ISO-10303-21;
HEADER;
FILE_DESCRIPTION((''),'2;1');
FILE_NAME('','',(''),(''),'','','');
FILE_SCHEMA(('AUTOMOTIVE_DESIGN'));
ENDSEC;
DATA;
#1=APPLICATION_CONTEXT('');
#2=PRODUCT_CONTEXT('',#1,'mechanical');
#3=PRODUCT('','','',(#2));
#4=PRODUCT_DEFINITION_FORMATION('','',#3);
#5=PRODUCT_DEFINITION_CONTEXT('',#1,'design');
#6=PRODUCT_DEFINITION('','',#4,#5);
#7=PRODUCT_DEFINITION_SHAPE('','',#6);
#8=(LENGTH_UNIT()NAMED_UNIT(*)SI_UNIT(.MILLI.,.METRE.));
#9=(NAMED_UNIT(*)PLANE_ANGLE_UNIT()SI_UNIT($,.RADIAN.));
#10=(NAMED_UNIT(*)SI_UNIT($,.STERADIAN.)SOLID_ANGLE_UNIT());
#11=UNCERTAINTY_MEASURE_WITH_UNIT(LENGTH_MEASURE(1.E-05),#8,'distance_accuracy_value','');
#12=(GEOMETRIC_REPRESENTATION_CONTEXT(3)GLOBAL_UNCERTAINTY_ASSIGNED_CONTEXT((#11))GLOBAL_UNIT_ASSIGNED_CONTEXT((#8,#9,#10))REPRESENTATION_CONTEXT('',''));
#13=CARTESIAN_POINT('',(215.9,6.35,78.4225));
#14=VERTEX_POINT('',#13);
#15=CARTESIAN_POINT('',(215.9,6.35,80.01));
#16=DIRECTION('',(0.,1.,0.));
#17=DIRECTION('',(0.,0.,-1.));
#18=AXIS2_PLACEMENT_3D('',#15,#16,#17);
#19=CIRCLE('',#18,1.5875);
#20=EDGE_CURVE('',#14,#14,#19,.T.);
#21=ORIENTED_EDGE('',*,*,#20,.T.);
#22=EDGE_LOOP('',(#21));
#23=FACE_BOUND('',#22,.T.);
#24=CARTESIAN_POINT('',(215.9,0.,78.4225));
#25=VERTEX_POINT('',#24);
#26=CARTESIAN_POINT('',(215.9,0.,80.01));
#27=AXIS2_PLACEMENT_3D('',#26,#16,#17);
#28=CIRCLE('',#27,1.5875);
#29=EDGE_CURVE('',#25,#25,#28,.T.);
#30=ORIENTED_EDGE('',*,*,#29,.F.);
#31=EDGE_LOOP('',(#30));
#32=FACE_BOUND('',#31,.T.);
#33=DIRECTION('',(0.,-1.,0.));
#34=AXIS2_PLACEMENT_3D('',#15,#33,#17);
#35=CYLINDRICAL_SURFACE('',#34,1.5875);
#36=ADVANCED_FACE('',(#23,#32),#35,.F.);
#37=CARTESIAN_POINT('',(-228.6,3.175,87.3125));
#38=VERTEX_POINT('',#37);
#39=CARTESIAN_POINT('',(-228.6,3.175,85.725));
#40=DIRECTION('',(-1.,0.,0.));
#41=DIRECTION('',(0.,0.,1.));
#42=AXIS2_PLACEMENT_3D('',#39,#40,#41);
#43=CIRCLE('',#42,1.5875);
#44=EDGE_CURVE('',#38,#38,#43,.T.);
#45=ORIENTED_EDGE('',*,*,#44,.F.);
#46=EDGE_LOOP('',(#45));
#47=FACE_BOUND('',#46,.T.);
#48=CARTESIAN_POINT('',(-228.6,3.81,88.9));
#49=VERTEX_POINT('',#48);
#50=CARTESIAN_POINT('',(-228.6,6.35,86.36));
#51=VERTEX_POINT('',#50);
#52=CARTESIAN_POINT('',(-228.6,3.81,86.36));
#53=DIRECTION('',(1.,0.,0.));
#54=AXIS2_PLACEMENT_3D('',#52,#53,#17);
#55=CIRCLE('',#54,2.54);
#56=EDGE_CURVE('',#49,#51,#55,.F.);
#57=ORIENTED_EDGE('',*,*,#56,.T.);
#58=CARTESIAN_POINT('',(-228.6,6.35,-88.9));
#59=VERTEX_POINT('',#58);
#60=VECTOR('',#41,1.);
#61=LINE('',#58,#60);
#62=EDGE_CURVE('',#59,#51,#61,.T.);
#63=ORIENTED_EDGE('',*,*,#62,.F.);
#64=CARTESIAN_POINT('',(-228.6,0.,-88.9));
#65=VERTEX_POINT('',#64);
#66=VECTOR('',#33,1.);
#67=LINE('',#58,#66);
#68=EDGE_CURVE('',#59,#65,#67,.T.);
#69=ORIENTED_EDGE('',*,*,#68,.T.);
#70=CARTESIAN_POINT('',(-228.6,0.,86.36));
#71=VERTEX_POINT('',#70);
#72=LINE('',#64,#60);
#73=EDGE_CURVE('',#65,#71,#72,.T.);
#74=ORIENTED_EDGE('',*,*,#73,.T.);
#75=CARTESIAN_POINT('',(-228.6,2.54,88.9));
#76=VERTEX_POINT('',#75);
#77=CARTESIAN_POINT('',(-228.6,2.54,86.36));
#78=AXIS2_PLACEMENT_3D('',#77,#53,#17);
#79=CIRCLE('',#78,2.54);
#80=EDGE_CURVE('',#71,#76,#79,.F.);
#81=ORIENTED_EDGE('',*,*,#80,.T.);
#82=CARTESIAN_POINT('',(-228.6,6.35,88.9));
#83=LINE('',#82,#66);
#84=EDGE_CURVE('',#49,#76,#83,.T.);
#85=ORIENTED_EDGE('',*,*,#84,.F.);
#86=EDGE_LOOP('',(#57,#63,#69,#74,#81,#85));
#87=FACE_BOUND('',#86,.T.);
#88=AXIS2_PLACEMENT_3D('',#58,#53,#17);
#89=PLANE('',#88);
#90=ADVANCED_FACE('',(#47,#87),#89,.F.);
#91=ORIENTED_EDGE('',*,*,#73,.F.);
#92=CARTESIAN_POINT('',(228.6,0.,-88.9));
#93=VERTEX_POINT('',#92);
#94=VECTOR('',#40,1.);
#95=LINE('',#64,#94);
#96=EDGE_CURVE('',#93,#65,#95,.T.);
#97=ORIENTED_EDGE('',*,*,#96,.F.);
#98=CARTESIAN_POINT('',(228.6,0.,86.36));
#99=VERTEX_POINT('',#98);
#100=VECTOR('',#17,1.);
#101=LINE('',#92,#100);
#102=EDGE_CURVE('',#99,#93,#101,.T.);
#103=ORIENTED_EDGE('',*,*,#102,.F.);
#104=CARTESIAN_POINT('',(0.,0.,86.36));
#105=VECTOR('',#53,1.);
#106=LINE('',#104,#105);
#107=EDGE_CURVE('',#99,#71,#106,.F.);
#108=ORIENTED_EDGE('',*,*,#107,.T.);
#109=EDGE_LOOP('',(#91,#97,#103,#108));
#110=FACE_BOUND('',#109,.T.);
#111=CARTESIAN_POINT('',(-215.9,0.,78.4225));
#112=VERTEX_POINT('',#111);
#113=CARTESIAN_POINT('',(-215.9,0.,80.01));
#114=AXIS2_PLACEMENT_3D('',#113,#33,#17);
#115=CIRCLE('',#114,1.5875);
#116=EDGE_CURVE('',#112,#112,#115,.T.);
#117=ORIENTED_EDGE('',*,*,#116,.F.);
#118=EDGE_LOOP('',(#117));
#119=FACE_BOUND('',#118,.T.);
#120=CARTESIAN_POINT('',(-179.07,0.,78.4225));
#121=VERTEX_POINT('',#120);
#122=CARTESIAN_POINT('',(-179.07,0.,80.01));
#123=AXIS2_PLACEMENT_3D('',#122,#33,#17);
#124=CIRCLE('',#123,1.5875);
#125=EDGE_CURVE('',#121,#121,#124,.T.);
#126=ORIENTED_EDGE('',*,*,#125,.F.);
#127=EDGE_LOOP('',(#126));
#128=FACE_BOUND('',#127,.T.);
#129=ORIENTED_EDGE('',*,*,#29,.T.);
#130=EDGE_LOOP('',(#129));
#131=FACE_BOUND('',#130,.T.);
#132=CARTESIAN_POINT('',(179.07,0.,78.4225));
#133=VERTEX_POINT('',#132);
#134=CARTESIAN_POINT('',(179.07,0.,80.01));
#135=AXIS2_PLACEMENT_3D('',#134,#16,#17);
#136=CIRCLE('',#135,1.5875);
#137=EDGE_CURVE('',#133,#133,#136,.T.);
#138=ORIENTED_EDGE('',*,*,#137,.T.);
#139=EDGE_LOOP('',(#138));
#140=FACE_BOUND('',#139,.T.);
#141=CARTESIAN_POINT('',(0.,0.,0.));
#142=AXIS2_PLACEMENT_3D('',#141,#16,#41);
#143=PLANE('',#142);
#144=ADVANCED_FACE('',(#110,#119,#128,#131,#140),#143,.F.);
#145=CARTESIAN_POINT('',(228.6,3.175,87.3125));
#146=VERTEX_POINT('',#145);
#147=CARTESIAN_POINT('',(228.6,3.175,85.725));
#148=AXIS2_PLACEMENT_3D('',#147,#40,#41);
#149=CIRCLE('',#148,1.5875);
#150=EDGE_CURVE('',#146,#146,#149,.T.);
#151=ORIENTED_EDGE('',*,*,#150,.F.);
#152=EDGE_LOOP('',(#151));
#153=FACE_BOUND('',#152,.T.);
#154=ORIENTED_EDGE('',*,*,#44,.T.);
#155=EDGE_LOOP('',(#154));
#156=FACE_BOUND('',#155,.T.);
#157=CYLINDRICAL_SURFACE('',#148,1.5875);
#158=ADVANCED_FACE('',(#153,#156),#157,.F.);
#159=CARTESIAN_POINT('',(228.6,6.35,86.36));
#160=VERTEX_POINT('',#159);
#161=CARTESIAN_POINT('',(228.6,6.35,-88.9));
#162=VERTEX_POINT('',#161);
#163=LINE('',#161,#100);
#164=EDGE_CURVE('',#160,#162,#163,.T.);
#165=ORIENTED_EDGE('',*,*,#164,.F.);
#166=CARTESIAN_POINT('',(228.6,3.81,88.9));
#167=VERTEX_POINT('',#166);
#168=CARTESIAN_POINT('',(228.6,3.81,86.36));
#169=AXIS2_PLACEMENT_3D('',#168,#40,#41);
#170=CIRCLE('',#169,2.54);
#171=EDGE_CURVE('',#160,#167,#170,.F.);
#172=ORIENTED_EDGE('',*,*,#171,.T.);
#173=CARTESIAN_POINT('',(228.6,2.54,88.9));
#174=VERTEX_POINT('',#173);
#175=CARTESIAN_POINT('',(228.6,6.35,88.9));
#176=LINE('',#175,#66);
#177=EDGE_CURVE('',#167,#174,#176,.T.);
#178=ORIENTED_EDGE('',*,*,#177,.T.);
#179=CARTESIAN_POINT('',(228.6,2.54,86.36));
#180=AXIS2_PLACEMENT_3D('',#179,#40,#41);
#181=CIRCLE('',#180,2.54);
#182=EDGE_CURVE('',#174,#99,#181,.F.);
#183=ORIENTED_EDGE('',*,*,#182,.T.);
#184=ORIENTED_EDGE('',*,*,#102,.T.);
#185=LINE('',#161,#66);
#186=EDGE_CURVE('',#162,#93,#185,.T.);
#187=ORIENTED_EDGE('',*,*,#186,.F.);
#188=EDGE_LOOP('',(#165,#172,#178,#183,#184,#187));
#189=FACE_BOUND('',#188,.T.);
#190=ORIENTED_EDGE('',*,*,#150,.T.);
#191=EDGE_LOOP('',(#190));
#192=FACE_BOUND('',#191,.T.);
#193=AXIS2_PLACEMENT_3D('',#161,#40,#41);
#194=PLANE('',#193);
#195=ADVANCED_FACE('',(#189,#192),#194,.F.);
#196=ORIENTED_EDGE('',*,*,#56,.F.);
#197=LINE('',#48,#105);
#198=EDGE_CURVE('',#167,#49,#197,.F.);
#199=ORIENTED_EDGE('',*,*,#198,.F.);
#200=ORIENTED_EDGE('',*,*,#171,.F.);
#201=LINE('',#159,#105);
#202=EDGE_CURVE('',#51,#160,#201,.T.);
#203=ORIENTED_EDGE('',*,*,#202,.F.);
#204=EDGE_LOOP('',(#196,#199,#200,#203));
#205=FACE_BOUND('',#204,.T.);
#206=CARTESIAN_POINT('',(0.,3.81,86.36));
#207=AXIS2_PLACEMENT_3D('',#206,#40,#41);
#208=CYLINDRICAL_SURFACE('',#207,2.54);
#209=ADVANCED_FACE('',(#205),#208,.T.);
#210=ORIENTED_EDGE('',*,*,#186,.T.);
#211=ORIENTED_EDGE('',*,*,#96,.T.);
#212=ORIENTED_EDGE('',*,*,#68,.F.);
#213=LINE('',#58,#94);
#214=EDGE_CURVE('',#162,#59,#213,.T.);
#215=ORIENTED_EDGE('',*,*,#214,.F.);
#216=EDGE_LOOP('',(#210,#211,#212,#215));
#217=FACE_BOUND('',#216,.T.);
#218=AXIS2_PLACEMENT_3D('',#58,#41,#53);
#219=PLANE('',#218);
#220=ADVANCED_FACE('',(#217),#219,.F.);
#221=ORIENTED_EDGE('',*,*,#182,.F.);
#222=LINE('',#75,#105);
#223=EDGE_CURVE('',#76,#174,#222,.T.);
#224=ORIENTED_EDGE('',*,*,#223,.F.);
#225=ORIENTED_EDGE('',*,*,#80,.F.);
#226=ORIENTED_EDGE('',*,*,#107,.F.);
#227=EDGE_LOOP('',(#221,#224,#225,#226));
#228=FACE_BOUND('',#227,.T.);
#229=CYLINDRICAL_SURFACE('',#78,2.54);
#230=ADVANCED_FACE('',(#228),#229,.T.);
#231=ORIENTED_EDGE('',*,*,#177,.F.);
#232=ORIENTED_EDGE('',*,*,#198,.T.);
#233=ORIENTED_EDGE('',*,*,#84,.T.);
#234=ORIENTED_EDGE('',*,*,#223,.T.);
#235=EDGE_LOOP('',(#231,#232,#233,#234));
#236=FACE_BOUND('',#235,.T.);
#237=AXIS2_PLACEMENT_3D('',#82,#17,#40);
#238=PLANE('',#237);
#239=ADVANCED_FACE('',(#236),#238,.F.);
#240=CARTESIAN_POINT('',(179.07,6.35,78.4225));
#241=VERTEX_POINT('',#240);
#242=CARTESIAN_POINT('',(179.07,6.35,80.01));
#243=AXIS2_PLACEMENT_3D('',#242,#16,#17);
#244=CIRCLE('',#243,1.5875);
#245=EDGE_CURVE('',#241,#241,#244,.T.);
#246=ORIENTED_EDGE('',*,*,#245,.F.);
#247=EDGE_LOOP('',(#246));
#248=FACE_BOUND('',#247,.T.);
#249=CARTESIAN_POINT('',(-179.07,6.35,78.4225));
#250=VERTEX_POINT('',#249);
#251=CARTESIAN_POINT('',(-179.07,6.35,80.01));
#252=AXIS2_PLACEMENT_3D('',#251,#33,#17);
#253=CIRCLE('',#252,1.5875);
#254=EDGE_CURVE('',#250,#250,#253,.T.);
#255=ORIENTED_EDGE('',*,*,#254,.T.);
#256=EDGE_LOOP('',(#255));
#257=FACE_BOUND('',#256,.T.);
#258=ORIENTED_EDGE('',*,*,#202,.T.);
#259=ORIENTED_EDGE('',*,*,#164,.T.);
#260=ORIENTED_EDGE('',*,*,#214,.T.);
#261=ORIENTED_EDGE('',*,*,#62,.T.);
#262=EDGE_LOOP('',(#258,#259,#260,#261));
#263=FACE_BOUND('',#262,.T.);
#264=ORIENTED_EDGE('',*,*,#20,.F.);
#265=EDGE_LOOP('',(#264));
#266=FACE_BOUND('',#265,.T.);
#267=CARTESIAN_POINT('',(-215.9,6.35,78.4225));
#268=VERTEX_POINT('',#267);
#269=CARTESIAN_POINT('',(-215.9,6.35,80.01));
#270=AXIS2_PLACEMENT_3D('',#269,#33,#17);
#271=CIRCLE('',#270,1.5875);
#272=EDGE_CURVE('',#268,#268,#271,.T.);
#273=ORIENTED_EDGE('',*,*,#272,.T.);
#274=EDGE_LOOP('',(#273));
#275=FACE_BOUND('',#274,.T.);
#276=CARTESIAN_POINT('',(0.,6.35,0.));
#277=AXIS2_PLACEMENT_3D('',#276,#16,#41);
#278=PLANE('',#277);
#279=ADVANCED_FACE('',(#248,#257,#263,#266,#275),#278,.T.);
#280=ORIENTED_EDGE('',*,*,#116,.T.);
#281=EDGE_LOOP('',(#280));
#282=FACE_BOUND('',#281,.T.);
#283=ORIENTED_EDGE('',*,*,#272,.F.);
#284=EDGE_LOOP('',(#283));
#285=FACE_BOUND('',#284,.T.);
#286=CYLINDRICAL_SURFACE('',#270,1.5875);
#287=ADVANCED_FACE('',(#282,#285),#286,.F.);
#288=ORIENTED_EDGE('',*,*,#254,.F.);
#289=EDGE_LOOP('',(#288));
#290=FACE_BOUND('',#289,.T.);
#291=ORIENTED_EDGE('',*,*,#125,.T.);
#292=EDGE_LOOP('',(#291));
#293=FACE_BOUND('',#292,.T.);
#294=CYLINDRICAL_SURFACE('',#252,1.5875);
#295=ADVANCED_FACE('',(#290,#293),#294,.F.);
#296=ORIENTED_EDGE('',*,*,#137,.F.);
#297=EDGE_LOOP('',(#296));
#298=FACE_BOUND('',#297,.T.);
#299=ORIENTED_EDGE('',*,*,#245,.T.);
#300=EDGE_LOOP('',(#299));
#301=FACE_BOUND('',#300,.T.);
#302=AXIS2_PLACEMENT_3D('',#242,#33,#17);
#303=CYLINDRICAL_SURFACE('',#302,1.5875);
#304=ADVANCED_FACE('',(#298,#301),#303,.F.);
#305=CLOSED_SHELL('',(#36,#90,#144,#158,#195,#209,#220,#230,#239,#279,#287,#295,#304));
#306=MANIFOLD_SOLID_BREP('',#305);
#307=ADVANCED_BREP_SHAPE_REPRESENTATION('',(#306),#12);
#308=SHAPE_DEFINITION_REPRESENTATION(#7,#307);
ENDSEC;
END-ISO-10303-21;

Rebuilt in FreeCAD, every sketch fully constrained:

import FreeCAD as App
import Part
import Sketcher
Q = App.Units.Quantity


def edges_at(feature, points):
    """Names of the edges that pass closest to the given points."""
    edges = feature.Shape.Edges
    near = lambda p: min(range(len(edges)), key=lambda i: edges[i].distToShape(Part.Vertex(*p))[0])
    return sorted({f"Edge{near(p) + 1}" for p in points})


def add_polygon(sketch, points):
    """Adds a closed chain of lines whose ends are joined by coincident constraints."""
    first, n = sketch.GeometryCount, len(points)
    for a, b in zip(points, points[1:] + points[:1]):
        sketch.addGeometry(Part.LineSegment(App.Vector(*a, 0), App.Vector(*b, 0)), False)
    for i in range(n):
        sketch.addConstraint(Sketcher.Constraint("Coincident", first + i, 2, first + (i + 1) % n, 1))

doc = App.newDocument("Part")
body = doc.addObject("PartDesign::Body", "Body")

# Sketch on XZ plane
sketch1 = body.newObject("Sketcher::SketchObject", "Sketch")
sketch1.AttachmentSupport = (doc.getObject("XZ_Plane"), [""])
sketch1.MapMode = "FlatFace"
add_polygon(sketch1, [(-229, -89), (-229, 89), (229, 89), (229, -89)])  # lines 0-3
sketch1.addConstraint([
    Sketcher.Constraint("Vertical", 0),
    Sketcher.Constraint("Horizontal", 1),
    Sketcher.Constraint("Vertical", 2),
    Sketcher.Constraint("Horizontal", 3),
    Sketcher.Constraint("Symmetric", 0, 2, 2, 2, -1, 1),
    Sketcher.Constraint("DistanceX", 1, 1, 1, 2, Q("18 in")),
    Sketcher.Constraint("DistanceY", 0, 1, 0, 2, Q("7 in")),
])
pad1 = body.newObject("PartDesign::Pad", "Pad")
pad1.Profile = sketch1
pad1.Length = Q("0.25 in")
pad1.Reversed = True

# Sketch on YZ plane
sketch2 = body.newObject("Sketcher::SketchObject", "Sketch001")
sketch2.AttachmentSupport = (doc.getObject("YZ_Plane"), [""])
sketch2.MapMode = "FlatFace"
sketch2.AttachmentOffset = App.Placement(App.Vector(0, 0, -9 * 25.4), App.Rotation())
sketch2.addGeometry(Part.Circle(App.Vector(3.2, 85.7, 0), App.Vector(0, 0, 1), 1.6), False)
sketch2.addConstraint([
    Sketcher.Constraint("Diameter", 0, Q("0.125 in")),
    Sketcher.Constraint("DistanceX", -1, 1, 0, 3, Q("0.125 in")),
    Sketcher.Constraint("DistanceY", -1, 1, 0, 3, Q("3.375 in")),
])
pocket1 = body.newObject("PartDesign::Pocket", "Pocket")
pocket1.Profile = sketch2
pocket1.Type = "ThroughAll"
pocket1.Reversed = True
doc.recompute()

fillet = body.newObject("PartDesign::Fillet", "Fillet")
fillet.Base = (pocket1, edges_at(pocket1, [(0, 6.35, 88.9), (0, 0, 88.9)]))
fillet.Radius = Q("0.1 in")

# Sketch on XZ plane
sketch3 = body.newObject("Sketcher::SketchObject", "Sketch002")
sketch3.AttachmentSupport = (doc.getObject("XZ_Plane"), [""])
sketch3.MapMode = "FlatFace"
sketch3.addGeometry([
    Part.Circle(App.Vector(-179.1, 80, 0), App.Vector(0, 0, 1), 1.6),
    Part.Circle(App.Vector(-215.9, 80, 0), App.Vector(0, 0, 1), 1.6),
], False)
sketch3.addConstraint([
    Sketcher.Constraint("Equal", 0, 1),
    Sketcher.Constraint("Horizontal", 0, 3, 1, 3),
    Sketcher.Constraint("Diameter", 0, Q("0.125 in")),
    Sketcher.Constraint("DistanceX", 1, 3, -1, 1, Q("8.5 in")),
    Sketcher.Constraint("DistanceX", 0, 3, -1, 1, Q("7.05 in")),
    Sketcher.Constraint("DistanceY", -1, 1, 0, 3, Q("3.15 in")),
])
pocket2 = body.newObject("PartDesign::Pocket", "Pocket001")
pocket2.Profile = sketch3
pocket2.Type = "ThroughAll"
doc.recompute()

mirrored = body.newObject("PartDesign::Mirrored", "Mirrored")
mirrored.Originals = [pocket2]
mirrored.MirrorPlane = (doc.getObject("YZ_Plane"), [""])
body.Tip = mirrored

doc.recompute()
